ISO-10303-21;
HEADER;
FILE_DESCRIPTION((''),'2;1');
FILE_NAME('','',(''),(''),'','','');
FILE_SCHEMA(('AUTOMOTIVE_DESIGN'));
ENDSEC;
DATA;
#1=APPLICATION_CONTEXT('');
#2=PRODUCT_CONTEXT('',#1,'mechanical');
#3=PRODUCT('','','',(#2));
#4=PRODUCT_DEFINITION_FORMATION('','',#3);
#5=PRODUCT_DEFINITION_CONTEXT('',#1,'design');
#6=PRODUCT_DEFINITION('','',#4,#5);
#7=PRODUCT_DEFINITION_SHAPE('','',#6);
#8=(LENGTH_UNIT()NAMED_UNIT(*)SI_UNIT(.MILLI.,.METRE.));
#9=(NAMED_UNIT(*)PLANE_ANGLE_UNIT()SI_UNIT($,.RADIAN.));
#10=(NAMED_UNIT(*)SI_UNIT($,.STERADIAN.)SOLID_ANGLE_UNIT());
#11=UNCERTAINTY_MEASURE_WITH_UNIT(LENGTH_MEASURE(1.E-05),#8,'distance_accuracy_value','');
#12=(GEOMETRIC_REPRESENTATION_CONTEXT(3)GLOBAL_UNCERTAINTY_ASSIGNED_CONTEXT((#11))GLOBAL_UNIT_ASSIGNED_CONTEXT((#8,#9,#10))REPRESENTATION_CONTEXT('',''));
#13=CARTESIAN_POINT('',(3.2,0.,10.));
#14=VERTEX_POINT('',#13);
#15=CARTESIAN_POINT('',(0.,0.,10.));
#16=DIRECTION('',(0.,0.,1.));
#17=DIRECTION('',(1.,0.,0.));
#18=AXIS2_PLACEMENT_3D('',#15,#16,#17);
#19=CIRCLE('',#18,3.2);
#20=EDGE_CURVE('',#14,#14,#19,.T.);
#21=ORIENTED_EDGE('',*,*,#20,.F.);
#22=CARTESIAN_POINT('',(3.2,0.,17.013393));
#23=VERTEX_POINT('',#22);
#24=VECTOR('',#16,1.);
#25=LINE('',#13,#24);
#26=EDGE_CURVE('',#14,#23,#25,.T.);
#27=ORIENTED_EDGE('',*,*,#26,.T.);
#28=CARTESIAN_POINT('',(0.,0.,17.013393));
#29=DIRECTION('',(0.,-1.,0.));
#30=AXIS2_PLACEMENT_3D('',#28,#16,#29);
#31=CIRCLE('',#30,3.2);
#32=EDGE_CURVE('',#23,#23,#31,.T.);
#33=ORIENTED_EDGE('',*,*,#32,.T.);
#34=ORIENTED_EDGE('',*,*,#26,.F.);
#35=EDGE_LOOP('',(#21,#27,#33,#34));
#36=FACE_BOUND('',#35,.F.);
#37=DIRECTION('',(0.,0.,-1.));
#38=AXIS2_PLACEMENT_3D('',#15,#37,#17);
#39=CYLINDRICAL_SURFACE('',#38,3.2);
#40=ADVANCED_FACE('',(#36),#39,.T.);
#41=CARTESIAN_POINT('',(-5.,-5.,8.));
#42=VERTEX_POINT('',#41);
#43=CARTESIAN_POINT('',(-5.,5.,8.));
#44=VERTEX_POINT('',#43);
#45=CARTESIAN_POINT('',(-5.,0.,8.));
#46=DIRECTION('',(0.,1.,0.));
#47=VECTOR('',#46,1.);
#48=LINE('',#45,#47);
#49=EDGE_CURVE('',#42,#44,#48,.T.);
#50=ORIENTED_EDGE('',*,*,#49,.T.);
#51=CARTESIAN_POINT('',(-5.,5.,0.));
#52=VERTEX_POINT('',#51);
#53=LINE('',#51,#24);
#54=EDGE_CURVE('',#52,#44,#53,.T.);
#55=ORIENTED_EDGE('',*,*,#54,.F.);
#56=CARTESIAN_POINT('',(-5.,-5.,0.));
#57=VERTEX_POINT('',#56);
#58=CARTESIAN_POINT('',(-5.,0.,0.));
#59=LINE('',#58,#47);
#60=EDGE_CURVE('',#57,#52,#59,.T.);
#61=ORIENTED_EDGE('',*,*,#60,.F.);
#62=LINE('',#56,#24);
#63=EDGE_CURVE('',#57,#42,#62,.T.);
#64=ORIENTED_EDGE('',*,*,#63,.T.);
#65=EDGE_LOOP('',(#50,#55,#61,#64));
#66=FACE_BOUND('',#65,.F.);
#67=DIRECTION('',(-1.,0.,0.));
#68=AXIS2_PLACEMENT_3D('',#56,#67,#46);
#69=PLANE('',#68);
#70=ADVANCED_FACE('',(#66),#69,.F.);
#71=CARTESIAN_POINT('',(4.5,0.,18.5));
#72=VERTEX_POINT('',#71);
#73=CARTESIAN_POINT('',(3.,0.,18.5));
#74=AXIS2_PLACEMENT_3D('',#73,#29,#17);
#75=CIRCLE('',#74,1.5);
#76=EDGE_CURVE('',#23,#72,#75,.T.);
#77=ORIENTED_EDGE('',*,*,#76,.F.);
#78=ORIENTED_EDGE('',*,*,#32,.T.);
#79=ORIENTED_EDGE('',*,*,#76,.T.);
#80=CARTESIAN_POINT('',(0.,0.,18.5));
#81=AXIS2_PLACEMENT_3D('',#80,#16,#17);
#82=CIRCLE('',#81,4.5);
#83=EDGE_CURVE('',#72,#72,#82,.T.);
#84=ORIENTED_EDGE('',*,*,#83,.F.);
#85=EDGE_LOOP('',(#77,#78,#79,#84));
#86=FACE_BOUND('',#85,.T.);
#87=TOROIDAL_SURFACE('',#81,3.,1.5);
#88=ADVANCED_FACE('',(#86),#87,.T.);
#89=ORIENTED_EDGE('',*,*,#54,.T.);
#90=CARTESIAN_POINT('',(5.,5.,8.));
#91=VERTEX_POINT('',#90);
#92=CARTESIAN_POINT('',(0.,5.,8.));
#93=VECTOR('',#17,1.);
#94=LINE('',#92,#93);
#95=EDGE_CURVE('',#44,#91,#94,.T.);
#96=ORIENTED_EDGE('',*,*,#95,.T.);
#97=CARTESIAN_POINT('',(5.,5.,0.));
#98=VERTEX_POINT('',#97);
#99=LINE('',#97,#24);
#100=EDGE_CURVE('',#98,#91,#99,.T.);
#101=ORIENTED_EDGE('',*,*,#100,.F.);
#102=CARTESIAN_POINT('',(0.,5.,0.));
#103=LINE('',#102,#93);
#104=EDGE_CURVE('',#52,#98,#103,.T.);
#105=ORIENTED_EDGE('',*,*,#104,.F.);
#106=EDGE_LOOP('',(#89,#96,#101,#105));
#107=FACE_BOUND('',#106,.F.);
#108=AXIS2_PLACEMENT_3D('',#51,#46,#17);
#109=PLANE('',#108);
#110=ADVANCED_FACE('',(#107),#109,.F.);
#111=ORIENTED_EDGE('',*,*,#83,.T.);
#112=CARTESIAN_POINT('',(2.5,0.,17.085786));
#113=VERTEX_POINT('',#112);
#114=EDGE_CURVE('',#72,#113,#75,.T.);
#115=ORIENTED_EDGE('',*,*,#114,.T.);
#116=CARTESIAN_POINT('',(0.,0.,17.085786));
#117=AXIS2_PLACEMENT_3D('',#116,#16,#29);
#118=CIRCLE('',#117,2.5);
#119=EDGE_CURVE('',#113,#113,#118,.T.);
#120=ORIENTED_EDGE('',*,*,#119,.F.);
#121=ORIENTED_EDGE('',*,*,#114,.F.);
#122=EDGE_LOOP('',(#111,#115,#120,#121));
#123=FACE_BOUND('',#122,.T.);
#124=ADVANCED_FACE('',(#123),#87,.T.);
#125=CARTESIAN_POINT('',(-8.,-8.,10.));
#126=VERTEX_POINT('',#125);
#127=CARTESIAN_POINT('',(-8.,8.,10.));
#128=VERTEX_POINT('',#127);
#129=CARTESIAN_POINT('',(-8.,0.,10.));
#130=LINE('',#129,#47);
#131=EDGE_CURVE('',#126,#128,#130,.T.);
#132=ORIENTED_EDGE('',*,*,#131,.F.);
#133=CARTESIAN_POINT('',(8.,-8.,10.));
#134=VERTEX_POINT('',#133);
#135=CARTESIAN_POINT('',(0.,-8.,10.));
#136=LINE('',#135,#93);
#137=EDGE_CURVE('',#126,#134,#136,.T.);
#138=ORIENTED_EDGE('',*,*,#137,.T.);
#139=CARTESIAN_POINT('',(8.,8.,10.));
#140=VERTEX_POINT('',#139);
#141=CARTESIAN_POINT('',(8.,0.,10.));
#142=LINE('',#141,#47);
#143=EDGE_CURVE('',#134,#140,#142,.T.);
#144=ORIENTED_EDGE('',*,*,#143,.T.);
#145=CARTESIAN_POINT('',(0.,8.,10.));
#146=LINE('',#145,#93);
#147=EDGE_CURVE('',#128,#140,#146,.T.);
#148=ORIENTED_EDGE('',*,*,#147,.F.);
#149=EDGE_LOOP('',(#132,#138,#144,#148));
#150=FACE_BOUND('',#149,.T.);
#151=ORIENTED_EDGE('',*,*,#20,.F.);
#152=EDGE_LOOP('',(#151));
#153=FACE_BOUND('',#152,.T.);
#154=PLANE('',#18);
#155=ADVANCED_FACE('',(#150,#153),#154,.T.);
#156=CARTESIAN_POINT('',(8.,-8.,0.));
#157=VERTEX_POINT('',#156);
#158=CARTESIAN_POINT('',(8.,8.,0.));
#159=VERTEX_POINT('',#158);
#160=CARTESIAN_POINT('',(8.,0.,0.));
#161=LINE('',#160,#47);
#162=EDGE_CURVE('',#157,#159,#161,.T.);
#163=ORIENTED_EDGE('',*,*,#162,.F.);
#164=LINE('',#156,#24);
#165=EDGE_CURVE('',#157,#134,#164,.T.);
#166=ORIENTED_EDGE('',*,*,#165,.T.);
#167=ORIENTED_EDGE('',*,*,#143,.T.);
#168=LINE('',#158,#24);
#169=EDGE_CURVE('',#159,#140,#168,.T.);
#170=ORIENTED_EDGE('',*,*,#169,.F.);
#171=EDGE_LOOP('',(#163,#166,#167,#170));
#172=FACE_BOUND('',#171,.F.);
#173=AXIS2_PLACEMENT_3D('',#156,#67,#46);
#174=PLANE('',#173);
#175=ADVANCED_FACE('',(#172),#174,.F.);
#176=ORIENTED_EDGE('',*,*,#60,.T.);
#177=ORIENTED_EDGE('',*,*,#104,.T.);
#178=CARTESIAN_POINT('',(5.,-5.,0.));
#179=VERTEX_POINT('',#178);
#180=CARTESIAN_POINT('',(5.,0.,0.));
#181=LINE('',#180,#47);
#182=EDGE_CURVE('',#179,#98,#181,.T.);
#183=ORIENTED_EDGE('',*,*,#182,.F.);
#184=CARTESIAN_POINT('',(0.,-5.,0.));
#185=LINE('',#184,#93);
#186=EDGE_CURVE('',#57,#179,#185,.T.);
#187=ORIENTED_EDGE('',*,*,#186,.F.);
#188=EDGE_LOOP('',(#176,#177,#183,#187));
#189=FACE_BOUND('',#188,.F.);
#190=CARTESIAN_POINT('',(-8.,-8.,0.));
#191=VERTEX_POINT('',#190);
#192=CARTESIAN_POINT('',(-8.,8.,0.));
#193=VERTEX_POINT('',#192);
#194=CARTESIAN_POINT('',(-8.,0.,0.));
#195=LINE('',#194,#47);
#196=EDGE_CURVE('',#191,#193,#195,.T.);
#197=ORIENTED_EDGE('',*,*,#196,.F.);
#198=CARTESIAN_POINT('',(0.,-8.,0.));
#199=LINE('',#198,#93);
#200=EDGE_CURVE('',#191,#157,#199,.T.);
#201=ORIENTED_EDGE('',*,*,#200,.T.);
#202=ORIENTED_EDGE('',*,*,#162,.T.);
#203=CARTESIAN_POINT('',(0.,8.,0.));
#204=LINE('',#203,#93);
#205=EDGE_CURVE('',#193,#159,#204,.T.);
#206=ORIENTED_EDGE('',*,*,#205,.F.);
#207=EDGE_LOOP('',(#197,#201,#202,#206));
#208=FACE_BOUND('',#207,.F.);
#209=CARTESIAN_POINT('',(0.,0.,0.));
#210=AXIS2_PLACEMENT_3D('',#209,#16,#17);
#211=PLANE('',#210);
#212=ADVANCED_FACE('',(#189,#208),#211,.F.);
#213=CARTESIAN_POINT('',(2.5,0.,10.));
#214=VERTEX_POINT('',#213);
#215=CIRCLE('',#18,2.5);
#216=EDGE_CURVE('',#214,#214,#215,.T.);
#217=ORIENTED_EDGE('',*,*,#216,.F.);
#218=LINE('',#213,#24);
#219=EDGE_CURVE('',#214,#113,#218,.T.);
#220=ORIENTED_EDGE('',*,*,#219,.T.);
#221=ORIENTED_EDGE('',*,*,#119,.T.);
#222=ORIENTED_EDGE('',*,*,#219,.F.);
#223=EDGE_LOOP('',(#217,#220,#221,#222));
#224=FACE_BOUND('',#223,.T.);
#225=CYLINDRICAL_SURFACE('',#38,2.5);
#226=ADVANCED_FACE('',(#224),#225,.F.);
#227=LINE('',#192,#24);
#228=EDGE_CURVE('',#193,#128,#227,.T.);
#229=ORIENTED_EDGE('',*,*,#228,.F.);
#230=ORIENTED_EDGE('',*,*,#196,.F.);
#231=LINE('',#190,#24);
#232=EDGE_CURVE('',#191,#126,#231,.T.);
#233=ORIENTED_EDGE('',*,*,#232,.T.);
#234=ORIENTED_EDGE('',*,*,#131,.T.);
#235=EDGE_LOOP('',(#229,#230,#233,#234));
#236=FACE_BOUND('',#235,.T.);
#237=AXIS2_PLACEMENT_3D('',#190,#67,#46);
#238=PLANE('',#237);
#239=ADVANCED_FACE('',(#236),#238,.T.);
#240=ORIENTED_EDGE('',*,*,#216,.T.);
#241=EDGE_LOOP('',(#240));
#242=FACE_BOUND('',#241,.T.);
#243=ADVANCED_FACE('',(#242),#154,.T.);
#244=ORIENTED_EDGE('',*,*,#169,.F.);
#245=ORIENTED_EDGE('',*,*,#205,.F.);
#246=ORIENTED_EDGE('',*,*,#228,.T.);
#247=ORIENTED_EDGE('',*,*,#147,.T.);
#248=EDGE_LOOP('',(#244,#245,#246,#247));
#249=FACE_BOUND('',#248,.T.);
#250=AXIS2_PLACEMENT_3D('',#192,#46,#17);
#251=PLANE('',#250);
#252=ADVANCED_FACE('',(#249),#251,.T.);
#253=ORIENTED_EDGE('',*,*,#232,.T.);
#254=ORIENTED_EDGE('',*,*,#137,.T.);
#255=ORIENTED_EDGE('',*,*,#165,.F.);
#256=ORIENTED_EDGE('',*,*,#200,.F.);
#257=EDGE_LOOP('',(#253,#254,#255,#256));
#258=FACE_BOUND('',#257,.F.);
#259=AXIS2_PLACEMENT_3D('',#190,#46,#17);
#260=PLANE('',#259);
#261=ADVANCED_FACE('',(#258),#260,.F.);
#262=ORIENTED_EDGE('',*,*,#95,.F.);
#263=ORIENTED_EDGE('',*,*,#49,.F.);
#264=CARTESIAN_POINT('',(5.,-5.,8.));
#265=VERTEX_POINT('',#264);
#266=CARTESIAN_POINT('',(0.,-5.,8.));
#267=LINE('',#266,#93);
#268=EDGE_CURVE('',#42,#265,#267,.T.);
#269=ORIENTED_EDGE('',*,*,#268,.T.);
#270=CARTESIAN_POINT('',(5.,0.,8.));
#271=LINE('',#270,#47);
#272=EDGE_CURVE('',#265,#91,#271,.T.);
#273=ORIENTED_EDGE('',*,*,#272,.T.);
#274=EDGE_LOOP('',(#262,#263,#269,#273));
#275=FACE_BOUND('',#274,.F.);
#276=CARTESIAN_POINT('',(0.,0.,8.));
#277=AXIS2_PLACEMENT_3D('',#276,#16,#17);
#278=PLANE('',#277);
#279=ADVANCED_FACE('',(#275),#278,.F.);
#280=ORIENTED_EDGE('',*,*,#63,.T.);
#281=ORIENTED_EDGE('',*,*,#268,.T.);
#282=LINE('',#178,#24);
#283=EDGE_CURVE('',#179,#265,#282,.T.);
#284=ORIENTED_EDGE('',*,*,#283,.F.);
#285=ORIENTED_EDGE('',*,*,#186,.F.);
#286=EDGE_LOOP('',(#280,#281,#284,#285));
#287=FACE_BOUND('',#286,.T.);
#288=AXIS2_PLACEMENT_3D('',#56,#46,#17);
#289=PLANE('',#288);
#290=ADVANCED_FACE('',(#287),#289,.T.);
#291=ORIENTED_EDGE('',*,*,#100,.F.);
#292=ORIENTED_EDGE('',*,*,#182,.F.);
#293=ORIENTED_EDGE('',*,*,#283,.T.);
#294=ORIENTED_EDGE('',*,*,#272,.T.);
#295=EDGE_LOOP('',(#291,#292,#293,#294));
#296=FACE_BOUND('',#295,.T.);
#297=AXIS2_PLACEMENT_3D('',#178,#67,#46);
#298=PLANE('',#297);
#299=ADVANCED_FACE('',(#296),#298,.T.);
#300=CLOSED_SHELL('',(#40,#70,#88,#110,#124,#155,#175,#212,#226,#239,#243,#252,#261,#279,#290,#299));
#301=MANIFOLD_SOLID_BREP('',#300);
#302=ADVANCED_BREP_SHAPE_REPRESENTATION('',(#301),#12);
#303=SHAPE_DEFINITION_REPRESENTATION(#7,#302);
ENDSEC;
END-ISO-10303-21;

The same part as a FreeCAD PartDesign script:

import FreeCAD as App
import Part
import Sketcher

doc = App.newDocument("Part")
body = doc.addObject("PartDesign::Body", "Body")

sketch1 = body.newObject("Sketcher::SketchObject", "Sketch")
sketch1.AttachmentSupport = (doc.getObject("XY_Plane"), [""])
sketch1.MapMode = "FlatFace"
sketch1.addGeometry([
    Part.LineSegment(App.Vector(-5, 5, 0), App.Vector(-5, -5, 0)),
    Part.LineSegment(App.Vector(-5, -5, 0), App.Vector(5, -5, 0)),
    Part.LineSegment(App.Vector(5, -5, 0), App.Vector(5, 5, 0)),
    Part.LineSegment(App.Vector(5, 5, 0), App.Vector(-5, 5, 0)),
], False)
sketch1.addConstraint([
    Sketcher.Constraint("Coincident", 0, 2, 1, 1),
    Sketcher.Constraint("Coincident", 1, 2, 2, 1),
    Sketcher.Constraint("Coincident", 2, 2, 3, 1),
    Sketcher.Constraint("Coincident", 3, 2, 0, 1),
    Sketcher.Constraint("Vertical", 0),
    Sketcher.Constraint("Horizontal", 1),
    Sketcher.Constraint("Vertical", 2),
    Sketcher.Constraint("Horizontal", 3),
    Sketcher.Constraint("Symmetric", 0, 2, 2, 2, -1, 1),
    Sketcher.Constraint("Equal", 3, 0),
    Sketcher.Constraint("DistanceX", 1, 1, 1, 2, 10.0),
])
pad1 = body.newObject("PartDesign::Pad", "Pad")
pad1.Profile = sketch1
pad1.Length = 8
body2 = doc.addObject("PartDesign::Body", "Body001")

sketch2 = body2.newObject("Sketcher::SketchObject", "Sketch001")
sketch2.AttachmentSupport = (doc.getObject("XY_Plane001"), [""])
sketch2.MapMode = "FlatFace"
sketch2.addGeometry([
    Part.LineSegment(App.Vector(-8, 8, 0), App.Vector(-8, -8, 0)),
    Part.LineSegment(App.Vector(-8, -8, 0), App.Vector(8, -8, 0)),
    Part.LineSegment(App.Vector(8, -8, 0), App.Vector(8, 8, 0)),
    Part.LineSegment(App.Vector(8, 8, 0), App.Vector(-8, 8, 0)),
], False)
sketch2.addConstraint([
    Sketcher.Constraint("Coincident", 0, 2, 1, 1),
    Sketcher.Constraint("Coincident", 1, 2, 2, 1),
    Sketcher.Constraint("Coincident", 2, 2, 3, 1),
    Sketcher.Constraint("Coincident", 3, 2, 0, 1),
    Sketcher.Constraint("Vertical", 0),
    Sketcher.Constraint("Horizontal", 1),
    Sketcher.Constraint("Vertical", 2),
    Sketcher.Constraint("Horizontal", 3),
    Sketcher.Constraint("Symmetric", 0, 2, 2, 2, -1, 1),
    Sketcher.Constraint("Equal", 3, 0),
    Sketcher.Constraint("DistanceX", 1, 1, 1, 2, 16.0),
])
pad2 = body2.newObject("PartDesign::Pad", "Pad001")
pad2.Profile = sketch2
pad2.Length = 10
body3 = doc.addObject("PartDesign::Body", "Body002")

sketch3 = body3.newObject("Sketcher::SketchObject", "Sketch002")
sketch3.AttachmentSupport = (doc.getObject("XZ_Plane002"), [""])
sketch3.MapMode = "FlatFace"
sketch3.addGeometry(Part.Circle(App.Vector(3, 18.5, 0), App.Vector(0, 0, 1), 1.5), False)
sketch3.addConstraint([
    Sketcher.Constraint("Diameter", 0, 3.0),
    Sketcher.Constraint("DistanceX", -1, 1, 0, 3, 3.0),
    Sketcher.Constraint("DistanceY", -1, 1, 0, 3, 18.5),
])
revolution = body3.newObject("PartDesign::Revolution", "Revolution")
revolution.Profile = sketch3
revolution.ReferenceAxis = (sketch3, ["V_Axis"])
revolution.Angle = 360
body4 = doc.addObject("PartDesign::Body", "Body003")

sketch4 = body4.newObject("Sketcher::SketchObject", "Sketch003")
sketch4.AttachmentSupport = (doc.getObject("XY_Plane003"), [""])
sketch4.MapMode = "FlatFace"
sketch4.AttachmentOffset = App.Placement(App.Vector(0, 0, 10), App.Rotation())
sketch4.addGeometry(Part.Circle(App.Vector(0, 0, 0), App.Vector(0, 0, 1), 2.5), False)
sketch4.addConstraint([
    Sketcher.Constraint("Coincident", 0, 3, -1, 1),
    Sketcher.Constraint("Diameter", 0, 5.0),
])
pad3 = body4.newObject("PartDesign::Pad", "Pad002")
pad3.Profile = sketch4
pad3.Length = 9
body5 = doc.addObject("PartDesign::Body", "Body004")

sketch5 = body5.newObject("Sketcher::SketchObject", "Sketch004")
sketch5.AttachmentSupport = (doc.getObject("XY_Plane004"), [""])
sketch5.MapMode = "FlatFace"
sketch5.AttachmentOffset = App.Placement(App.Vector(0, 0, 10), App.Rotation())
sketch5.addGeometry(Part.Circle(App.Vector(0, 0, 0), App.Vector(0, 0, 1), 3.2), False)
sketch5.addConstraint([
    Sketcher.Constraint("Coincident", 0, 3, -1, 1),
    Sketcher.Constraint("Diameter", 0, 6.4),
])
pad4 = body5.newObject("PartDesign::Pad", "Pad003")
pad4.Profile = sketch5
pad4.Length = 9
doc.recompute()

boolean = body5.newObject("PartDesign::Boolean", "Boolean")
boolean.Type = "Cut"
boolean.addObjects([body4])
doc.recompute()

boolean2 = body5.newObject("PartDesign::Boolean", "Boolean001")
boolean2.Type = "Fuse"
boolean2.addObjects([body2])
doc.recompute()

boolean3 = body5.newObject("PartDesign::Boolean", "Boolean002")
boolean3.Type = "Fuse"
boolean3.addObjects([body3])
doc.recompute()

boolean4 = body5.newObject("PartDesign::Boolean", "Boolean003")
boolean4.Type = "Cut"
boolean4.addObjects([body])

doc.recompute()
